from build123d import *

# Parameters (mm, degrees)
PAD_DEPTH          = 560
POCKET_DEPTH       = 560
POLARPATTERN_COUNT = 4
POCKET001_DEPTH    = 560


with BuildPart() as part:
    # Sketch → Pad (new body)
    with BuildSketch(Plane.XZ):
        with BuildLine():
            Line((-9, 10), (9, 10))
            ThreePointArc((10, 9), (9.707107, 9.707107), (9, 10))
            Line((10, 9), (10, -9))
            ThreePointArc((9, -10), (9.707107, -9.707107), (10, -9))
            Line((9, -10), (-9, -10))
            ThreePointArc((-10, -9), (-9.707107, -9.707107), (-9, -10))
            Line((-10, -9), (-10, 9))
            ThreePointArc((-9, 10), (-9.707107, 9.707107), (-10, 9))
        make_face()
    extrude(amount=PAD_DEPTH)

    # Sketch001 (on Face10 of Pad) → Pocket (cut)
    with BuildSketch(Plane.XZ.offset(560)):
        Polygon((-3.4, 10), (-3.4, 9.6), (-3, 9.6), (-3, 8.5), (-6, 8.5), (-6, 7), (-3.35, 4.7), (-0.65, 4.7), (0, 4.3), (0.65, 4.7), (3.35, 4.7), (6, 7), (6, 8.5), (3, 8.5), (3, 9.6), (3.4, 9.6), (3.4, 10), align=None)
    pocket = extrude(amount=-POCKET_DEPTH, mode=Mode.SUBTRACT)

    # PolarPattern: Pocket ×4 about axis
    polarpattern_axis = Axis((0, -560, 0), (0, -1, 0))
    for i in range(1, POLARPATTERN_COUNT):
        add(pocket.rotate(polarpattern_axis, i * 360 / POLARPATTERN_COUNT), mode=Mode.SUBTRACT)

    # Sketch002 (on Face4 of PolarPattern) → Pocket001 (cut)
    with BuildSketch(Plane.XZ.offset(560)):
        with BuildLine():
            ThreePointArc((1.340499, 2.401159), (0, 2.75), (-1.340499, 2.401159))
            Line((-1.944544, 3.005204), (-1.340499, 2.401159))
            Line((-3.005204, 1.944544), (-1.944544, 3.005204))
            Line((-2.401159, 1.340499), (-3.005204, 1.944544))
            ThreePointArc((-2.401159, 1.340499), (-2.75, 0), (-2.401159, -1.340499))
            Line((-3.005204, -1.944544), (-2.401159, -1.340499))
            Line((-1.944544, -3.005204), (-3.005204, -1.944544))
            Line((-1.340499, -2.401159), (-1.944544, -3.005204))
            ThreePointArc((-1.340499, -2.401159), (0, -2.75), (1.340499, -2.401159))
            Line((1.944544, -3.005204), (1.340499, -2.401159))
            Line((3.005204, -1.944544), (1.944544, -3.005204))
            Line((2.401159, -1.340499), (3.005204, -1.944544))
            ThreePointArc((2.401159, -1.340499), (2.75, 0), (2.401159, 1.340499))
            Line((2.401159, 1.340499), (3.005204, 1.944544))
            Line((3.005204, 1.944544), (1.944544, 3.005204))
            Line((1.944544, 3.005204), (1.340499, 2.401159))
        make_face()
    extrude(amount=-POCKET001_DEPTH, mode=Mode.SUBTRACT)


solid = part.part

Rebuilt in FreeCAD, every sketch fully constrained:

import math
import FreeCAD as App
import Part
import Sketcher

V = App.Vector

doc = App.newDocument("Part")
body = doc.addObject("PartDesign::Body", "Body")

sketch1 = body.newObject("Sketcher::SketchObject", "Sketch")
sketch1.AttachmentSupport = (doc.getObject("XZ_Plane"), [""])
sketch1.MapMode = "FlatFace"
sketch1.addGeometry([
    Part.LineSegment(V(9, 10, 0), V(-9, 10, 0)),
    Part.ArcOfCircle(Part.Circle(V(-9.000001, 9.000001, 0), V(0, 0, 1), 0.999999), math.radians(89.999957), math.radians(180.000043)),
    Part.LineSegment(V(-10, 9, 0), V(-10, -9, 0)),
    Part.ArcOfCircle(Part.Circle(V(-9.000001, -9.000001, 0), V(0, 0, 1), 0.999999), math.radians(179.999957), math.radians(270.000043)),
    Part.LineSegment(V(-9, -10, 0), V(9, -10, 0)),
    Part.ArcOfCircle(Part.Circle(V(9.000001, -9.000001, 0), V(0, 0, 1), 0.999999), math.radians(-90.000043), math.radians(0.000043)),
    Part.LineSegment(V(10, -9, 0), V(10, 9, 0)),
    Part.ArcOfCircle(Part.Circle(V(9.000001, 9.000001, 0), V(0, 0, 1), 0.999999), math.radians(-0.000043), math.radians(90.000043)),
], False)
sketch1.addConstraint([
    Sketcher.Constraint("Tangent", 0, 2, 1, 1),
    Sketcher.Constraint("Tangent", 1, 2, 2, 1),
    Sketcher.Constraint("Tangent", 2, 2, 3, 1),
    Sketcher.Constraint("Tangent", 3, 2, 4, 1),
    Sketcher.Constraint("Tangent", 4, 2, 5, 1),
    Sketcher.Constraint("Tangent", 5, 2, 6, 1),
    Sketcher.Constraint("Tangent", 6, 2, 7, 1),
    Sketcher.Constraint("Tangent", 7, 2, 0, 1),
    Sketcher.Constraint("Horizontal", 0),
    Sketcher.Constraint("Vertical", 2),
    Sketcher.Constraint("Horizontal", 4),
    Sketcher.Constraint("Vertical", 6),
    Sketcher.Constraint("Equal", 1, 3),
    Sketcher.Constraint("Equal", 3, 5),
    Sketcher.Constraint("Equal", 5, 7),
    Sketcher.Constraint("Symmetric", 1, 3, 5, 3, -1, 1),
    Sketcher.Constraint("Equal", 4, 2),
    Sketcher.Constraint("Radius", 1, 0.999999),
    Sketcher.Constraint("DistanceX", 0, 2, 0, 1, 18.0),
])
pad1 = body.newObject("PartDesign::Pad", "Pad")
pad1.Profile = sketch1
pad1.Length = 560

sketch2 = body.newObject("Sketcher::SketchObject", "Sketch001")
sketch2.AttachmentSupport = (doc.getObject("XZ_Plane"), [""])
sketch2.MapMode = "FlatFace"
sketch2.AttachmentOffset = App.Placement(V(0, 0, 560), App.Rotation())
sketch2.addGeometry([
    Part.LineSegment(V(-3.4, 10, 0), V(-3.4, 9.6, 0)),
    Part.LineSegment(V(-3.4, 9.6, 0), V(-3, 9.6, 0)),
    Part.LineSegment(V(-3, 9.6, 0), V(-3, 8.5, 0)),
    Part.LineSegment(V(-3, 8.5, 0), V(-6, 8.5, 0)),
    Part.LineSegment(V(-6, 8.5, 0), V(-6, 7, 0)),
    Part.LineSegment(V(-6, 7, 0), V(-3.35, 4.7, 0)),
    Part.LineSegment(V(-3.35, 4.7, 0), V(-0.65, 4.7, 0)),
    Part.LineSegment(V(-0.65, 4.7, 0), V(0, 4.3, 0)),
    Part.LineSegment(V(0, 4.3, 0), V(0.65, 4.7, 0)),
    Part.LineSegment(V(0.65, 4.7, 0), V(3.35, 4.7, 0)),
    Part.LineSegment(V(3.35, 4.7, 0), V(6, 7, 0)),
    Part.LineSegment(V(6, 7, 0), V(6, 8.5, 0)),
    Part.LineSegment(V(6, 8.5, 0), V(3, 8.5, 0)),
    Part.LineSegment(V(3, 8.5, 0), V(3, 9.6, 0)),
    Part.LineSegment(V(3, 9.6, 0), V(3.4, 9.6, 0)),
    Part.LineSegment(V(3.4, 9.6, 0), V(3.4, 10, 0)),
    Part.LineSegment(V(3.4, 10, 0), V(-3.4, 10, 0)),
], False)
sketch2.addConstraint([
    Sketcher.Constraint("Coincident", 0, 2, 1, 1),
    Sketcher.Constraint("Coincident", 1, 2, 2, 1),
    Sketcher.Constraint("Coincident", 2, 2, 3, 1),
    Sketcher.Constraint("Coincident", 3, 2, 4, 1),
    Sketcher.Constraint("Coincident", 4, 2, 5, 1),
    Sketcher.Constraint("Coincident", 5, 2, 6, 1),
    Sketcher.Constraint("Coincident", 6, 2, 7, 1),
    Sketcher.Constraint("Coincident", 7, 2, 8, 1),
    Sketcher.Constraint("Coincident", 8, 2, 9, 1),
    Sketcher.Constraint("Coincident", 9, 2, 10, 1),
    Sketcher.Constraint("Coincident", 10, 2, 11, 1),
    Sketcher.Constraint("Coincident", 11, 2, 12, 1),
    Sketcher.Constraint("Coincident", 12, 2, 13, 1),
    Sketcher.Constraint("Coincident", 13, 2, 14, 1),
    Sketcher.Constraint("Coincident", 14, 2, 15, 1),
    Sketcher.Constraint("Coincident", 15, 2, 16, 1),
    Sketcher.Constraint("Coincident", 16, 2, 0, 1),
    Sketcher.Constraint("Vertical", 0),
    Sketcher.Constraint("Horizontal", 1),
    Sketcher.Constraint("Vertical", 2),
    Sketcher.Constraint("Horizontal", 3),
    Sketcher.Constraint("Vertical", 4),
    Sketcher.Constraint("Horizontal", 6),
    Sketcher.Constraint("Horizontal", 9),
    Sketcher.Constraint("Vertical", 11),
    Sketcher.Constraint("Horizontal", 12),
    Sketcher.Constraint("Vertical", 13),
    Sketcher.Constraint("Horizontal", 14),
    Sketcher.Constraint("Vertical", 15),
    Sketcher.Constraint("Horizontal", 16),
    Sketcher.Constraint("Symmetric", 6, 2, 8, 2, -2),
    Sketcher.Constraint("Symmetric", 4, 2, 10, 2, -2),
    Sketcher.Constraint("Symmetric", 2, 2, 12, 2, -2),
    Sketcher.Constraint("Symmetric", 0, 2, 14, 2, -2),
    Sketcher.Constraint("PointOnObject", 7, 2, -2),
    Sketcher.Constraint("Equal", 6, 9),
    Sketcher.Constraint("Equal", 14, 0),
    Sketcher.Constraint("DistanceX", 3, 2, 3, 1, 3.0),
    Sketcher.Constraint("DistanceX", 1, 1, 1, 2, 0.4),
    Sketcher.Constraint("DistanceX", 6, 1, 6, 2, 2.7),
    Sketcher.Constraint("DistanceX", 16, 2, 16, 1, 6.8),
    Sketcher.Constraint("DistanceY", 2, 2, 2, 1, 1.1),
    Sketcher.Constraint("DistanceY", 4, 2, 4, 1, 1.5),
    Sketcher.Constraint("DistanceY", -1, 1, 4, 2, 7.0),
    Sketcher.Constraint("DistanceX", 5, 2, 8, 2, 4.0),
    Sketcher.Constraint("DistanceY", -1, 1, 5, 2, 4.7),
    Sketcher.Constraint("DistanceY", -1, 1, 7, 2, 4.3),
])
pocket1 = body.newObject("PartDesign::Pocket", "Pocket")
pocket1.Profile = sketch2
pocket1.Length = 560
doc.recompute()

polarpattern = body.newObject("PartDesign::PolarPattern", "PolarPattern")
polarpattern.Originals = [pocket1]
polarpattern.Axis = (doc.getObject("Y_Axis"), [""])
polarpattern.Angle = 360
polarpattern.Occurrences = 4
body.Tip = polarpattern

sketch3 = body.newObject("Sketcher::SketchObject", "Sketch002")
sketch3.AttachmentSupport = (doc.getObject("XZ_Plane"), [""])
sketch3.MapMode = "FlatFace"
sketch3.AttachmentOffset = App.Placement(V(0, 0, 560), App.Rotation())
sketch3.addGeometry([
    Part.ArcOfCircle(Part.Circle(V(0, -0.000003, 0), V(0, 0, 1), 2.750003), math.radians(60.826646), math.radians(119.173354)),
    Part.LineSegment(V(-1.340499, 2.401159, 0), V(-1.944544, 3.005204, 0)),
    Part.LineSegment(V(-1.944544, 3.005204, 0), V(-3.005204, 1.944544, 0)),
    Part.LineSegment(V(-3.005204, 1.944544, 0), V(-2.401159, 1.340499, 0)),
    Part.ArcOfCircle(Part.Circle(V(0.000003, 0, 0), V(0, 0, 1), 2.750003), math.radians(150.826646), math.radians(209.173354)),
    Part.LineSegment(V(-2.401159, -1.340499, 0), V(-3.005204, -1.944544, 0)),
    Part.LineSegment(V(-3.005204, -1.944544, 0), V(-1.944544, -3.005204, 0)),
    Part.LineSegment(V(-1.944544, -3.005204, 0), V(-1.340499, -2.401159, 0)),
    Part.ArcOfCircle(Part.Circle(V(0, 0.000003, 0), V(0, 0, 1), 2.750003), math.radians(-119.173354), math.radians(-60.826646)),
    Part.LineSegment(V(1.340499, -2.401159, 0), V(1.944544, -3.005204, 0)),
    Part.LineSegment(V(1.944544, -3.005204, 0), V(3.005204, -1.944544, 0)),
    Part.LineSegment(V(3.005204, -1.944544, 0), V(2.401159, -1.340499, 0)),
    Part.ArcOfCircle(Part.Circle(V(-0.000003, 0, 0), V(0, 0, 1), 2.750003), math.radians(-29.173354), math.radians(29.173354)),
    Part.LineSegment(V(2.401159, 1.340499, 0), V(3.005204, 1.944544, 0)),
    Part.LineSegment(V(3.005204, 1.944544, 0), V(1.944544, 3.005204, 0)),
    Part.LineSegment(V(1.944544, 3.005204, 0), V(1.340499, 2.401159, 0)),
], False)
sketch3.addConstraint([
    Sketcher.Constraint("Coincident", 0, 2, 1, 1),
    Sketcher.Constraint("Coincident", 1, 2, 2, 1),
    Sketcher.Constraint("Coincident", 2, 2, 3, 1),
    Sketcher.Constraint("Coincident", 3, 2, 4, 1),
    Sketcher.Constraint("Coincident", 4, 2, 5, 1),
    Sketcher.Constraint("Coincident", 5, 2, 6, 1),
    Sketcher.Constraint("Coincident", 6, 2, 7, 1),
    Sketcher.Constraint("Coincident", 7, 2, 8, 1),
    Sketcher.Constraint("Coincident", 8, 2, 9, 1),
    Sketcher.Constraint("Coincident", 9, 2, 10, 1),
    Sketcher.Constraint("Coincident", 10, 2, 11, 1),
    Sketcher.Constraint("Coincident", 11, 2, 12, 1),
    Sketcher.Constraint("Coincident", 12, 2, 13, 1),
    Sketcher.Constraint("Coincident", 13, 2, 14, 1),
    Sketcher.Constraint("Coincident", 14, 2, 15, 1),
    Sketcher.Constraint("Coincident", 15, 2, 0, 1),
    Sketcher.Constraint("Coincident", 0, 3, -1, 1),
    Sketcher.Constraint("Coincident", 4, 3, -1, 1),
    Sketcher.Constraint("Coincident", 8, 3, -1, 1),
    Sketcher.Constraint("Coincident", 12, 3, -1, 1),
    Sketcher.Constraint("Equal", 0, 4),
    Sketcher.Constraint("Equal", 4, 8),
    Sketcher.Constraint("Equal", 8, 12),
    Sketcher.Constraint("Symmetric", 1, 2, 9, 2, -1, 1),
    Sketcher.Constraint("Symmetric", 2, 2, 10, 2, -1, 1),
    Sketcher.Constraint("Symmetric", 5, 2, 13, 2, -1, 1),
    Sketcher.Constraint("Symmetric", 6, 2, 14, 2, -1, 1),
    Sketcher.Constraint("Symmetric", 6, 2, 9, 2, -2),
    Sketcher.Constraint("Symmetric", 5, 2, 10, 2, -2),
    Sketcher.Constraint("Perpendicular", 1, 2),
    Sketcher.Constraint("Perpendicular", 2, 3),
    Sketcher.Constraint("Perpendicular", 3, 5),
    Sketcher.Constraint("Perpendicular", 5, 6),
    Sketcher.Constraint("Perpendicular", 6, 7),
    Sketcher.Constraint("Perpendicular", 7, 9),
    Sketcher.Constraint("Perpendicular", 10, 11),
    Sketcher.Constraint("Perpendicular", 11, 13),
    Sketcher.Constraint("Perpendicular", 14, 15),
    Sketcher.Constraint("Equal", 1, 3),
    Sketcher.Constraint("Distance", 2, 1.5),
    Sketcher.Constraint("Radius", 0, 2.750003),
    Sketcher.Constraint("DistanceY", 8, 3, 1, 2, 3.005201),
])
pocket2 = body.newObject("PartDesign::Pocket", "Pocket001")
pocket2.Profile = sketch3
pocket2.Length = 560

doc.recompute()
